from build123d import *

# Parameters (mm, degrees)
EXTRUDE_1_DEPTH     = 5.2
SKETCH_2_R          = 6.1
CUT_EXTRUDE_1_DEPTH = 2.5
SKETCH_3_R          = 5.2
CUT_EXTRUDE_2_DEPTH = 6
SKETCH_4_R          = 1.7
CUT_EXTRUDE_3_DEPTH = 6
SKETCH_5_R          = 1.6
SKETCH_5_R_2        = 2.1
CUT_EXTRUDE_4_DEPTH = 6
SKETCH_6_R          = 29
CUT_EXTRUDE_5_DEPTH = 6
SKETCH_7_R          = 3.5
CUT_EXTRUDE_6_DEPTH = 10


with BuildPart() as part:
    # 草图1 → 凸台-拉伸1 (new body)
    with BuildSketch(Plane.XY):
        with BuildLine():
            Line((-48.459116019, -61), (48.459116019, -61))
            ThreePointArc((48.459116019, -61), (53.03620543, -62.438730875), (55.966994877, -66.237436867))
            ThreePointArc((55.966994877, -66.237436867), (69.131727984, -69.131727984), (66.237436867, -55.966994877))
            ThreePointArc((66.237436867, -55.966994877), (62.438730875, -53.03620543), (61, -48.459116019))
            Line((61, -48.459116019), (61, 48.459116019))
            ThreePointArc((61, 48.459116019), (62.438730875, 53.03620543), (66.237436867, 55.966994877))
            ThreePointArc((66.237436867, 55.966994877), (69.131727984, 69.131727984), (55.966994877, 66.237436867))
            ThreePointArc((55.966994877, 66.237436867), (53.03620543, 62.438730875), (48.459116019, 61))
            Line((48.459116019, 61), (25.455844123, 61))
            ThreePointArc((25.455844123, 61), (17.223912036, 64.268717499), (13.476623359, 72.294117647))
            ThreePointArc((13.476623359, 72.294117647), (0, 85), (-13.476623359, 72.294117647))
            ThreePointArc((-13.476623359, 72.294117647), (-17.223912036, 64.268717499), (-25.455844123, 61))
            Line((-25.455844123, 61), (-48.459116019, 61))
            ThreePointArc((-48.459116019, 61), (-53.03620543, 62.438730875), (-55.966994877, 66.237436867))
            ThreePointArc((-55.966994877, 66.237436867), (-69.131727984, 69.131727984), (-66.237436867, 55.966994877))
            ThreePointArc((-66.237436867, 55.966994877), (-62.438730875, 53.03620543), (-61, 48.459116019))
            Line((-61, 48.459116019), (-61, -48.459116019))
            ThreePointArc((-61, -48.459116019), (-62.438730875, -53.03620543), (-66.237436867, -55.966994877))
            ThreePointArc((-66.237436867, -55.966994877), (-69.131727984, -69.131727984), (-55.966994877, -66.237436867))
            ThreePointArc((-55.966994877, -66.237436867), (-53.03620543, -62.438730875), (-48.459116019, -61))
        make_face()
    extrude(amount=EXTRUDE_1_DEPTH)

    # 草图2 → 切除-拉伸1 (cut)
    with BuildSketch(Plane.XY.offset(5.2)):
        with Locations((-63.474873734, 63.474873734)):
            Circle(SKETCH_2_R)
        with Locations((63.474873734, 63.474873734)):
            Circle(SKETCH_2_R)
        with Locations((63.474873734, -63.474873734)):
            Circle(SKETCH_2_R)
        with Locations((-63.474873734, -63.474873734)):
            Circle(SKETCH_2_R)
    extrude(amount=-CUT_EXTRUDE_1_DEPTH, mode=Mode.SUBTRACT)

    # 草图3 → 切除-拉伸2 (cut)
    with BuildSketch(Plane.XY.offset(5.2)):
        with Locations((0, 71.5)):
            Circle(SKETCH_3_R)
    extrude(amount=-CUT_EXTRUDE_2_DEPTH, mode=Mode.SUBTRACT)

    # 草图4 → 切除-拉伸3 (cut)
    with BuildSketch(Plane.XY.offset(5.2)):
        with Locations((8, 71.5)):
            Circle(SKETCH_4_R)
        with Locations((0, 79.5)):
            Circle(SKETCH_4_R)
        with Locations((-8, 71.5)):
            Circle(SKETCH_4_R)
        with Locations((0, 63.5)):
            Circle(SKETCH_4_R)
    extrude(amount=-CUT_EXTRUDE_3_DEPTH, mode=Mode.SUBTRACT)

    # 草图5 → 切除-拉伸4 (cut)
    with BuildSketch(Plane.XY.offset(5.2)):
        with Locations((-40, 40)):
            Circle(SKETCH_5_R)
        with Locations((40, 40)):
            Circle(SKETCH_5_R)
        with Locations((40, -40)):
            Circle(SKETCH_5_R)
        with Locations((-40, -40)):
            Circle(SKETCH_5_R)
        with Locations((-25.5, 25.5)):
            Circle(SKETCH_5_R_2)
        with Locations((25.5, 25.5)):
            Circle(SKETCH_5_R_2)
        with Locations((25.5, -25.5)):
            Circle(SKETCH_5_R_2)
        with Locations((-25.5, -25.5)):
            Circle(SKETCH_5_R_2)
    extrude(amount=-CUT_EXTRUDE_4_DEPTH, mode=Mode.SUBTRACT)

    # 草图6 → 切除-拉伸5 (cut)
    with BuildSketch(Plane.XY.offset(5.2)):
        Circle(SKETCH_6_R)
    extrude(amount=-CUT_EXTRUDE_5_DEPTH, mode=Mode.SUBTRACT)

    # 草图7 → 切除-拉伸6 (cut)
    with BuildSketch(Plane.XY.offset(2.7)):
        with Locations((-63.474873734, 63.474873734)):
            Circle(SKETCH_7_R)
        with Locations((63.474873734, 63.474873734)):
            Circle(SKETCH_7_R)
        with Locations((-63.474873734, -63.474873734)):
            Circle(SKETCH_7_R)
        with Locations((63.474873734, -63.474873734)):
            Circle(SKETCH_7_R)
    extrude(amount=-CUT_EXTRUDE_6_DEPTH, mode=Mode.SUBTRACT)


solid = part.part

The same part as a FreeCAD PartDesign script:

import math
import FreeCAD as App
import Part
import Sketcher

V = App.Vector

doc = App.newDocument("Part")
body = doc.addObject("PartDesign::Body", "Body")

sketch1 = body.newObject("Sketcher::SketchObject", "Sketch")
sketch1.AttachmentSupport = (doc.getObject("XY_Plane"), [""])
sketch1.MapMode = "FlatFace"
sketch1.addGeometry(Part.LineSegment(V(-48.459116, -61, 0), V(48.459116, -61, 0)), False)
sketch1.addGeometry(Part.ArcOfCircle(Part.Circle(V(48.459116, -69, 0), V(0, 0, 1), 8), math.radians(20.201355), math.radians(90)), False)
sketch1.addGeometry(Part.ArcOfCircle(Part.Circle(V(63.474874, -63.474874, 0), V(0, 0, 1), 8), math.radians(-159.798645), math.radians(69.798645)), False)
sketch1.addGeometry(Part.ArcOfCircle(Part.Circle(V(69, -48.459116, 0), V(0, 0, 1), 8), math.radians(180), math.radians(249.798645)), False)
sketch1.addGeometry(Part.LineSegment(V(61, -48.459116, 0), V(61, 48.459116, 0)), False)
sketch1.addGeometry(Part.ArcOfCircle(Part.Circle(V(69, 48.459116, 0), V(0, 0, 1), 8), math.radians(110.201355), math.radians(180)), False)
sketch1.addGeometry(Part.ArcOfCircle(Part.Circle(V(63.474874, 63.474874, 0), V(0, 0, 1), 8), math.radians(-69.798645), math.radians(159.798645)), False)
sketch1.addGeometry(Part.ArcOfCircle(Part.Circle(V(48.459116, 69, 0), V(0, 0, 1), 8), math.radians(-90), math.radians(-20.201355)), False)
sketch1.addGeometry(Part.LineSegment(V(48.459116, 61, 0), V(25.455844, 61, 0)), False)
sketch1.addGeometry(Part.ArcOfCircle(Part.Circle(V(25.455844, 73, 0), V(0, 0, 1), 12), math.radians(-176.627713), math.radians(-90)), False)
sketch1.addGeometry(Part.ArcOfCircle(Part.Circle(V(0, 71.5, 0), V(0, 0, 1), 13.5), math.radians(3.372287), math.radians(176.627713)), False)
sketch1.addGeometry(Part.ArcOfCircle(Part.Circle(V(-25.455844, 73, 0), V(0, 0, 1), 12), math.radians(-90), math.radians(-3.372287)), False)
sketch1.addGeometry(Part.LineSegment(V(-25.455844, 61, 0), V(-48.459116, 61, 0)), False)
sketch1.addGeometry(Part.ArcOfCircle(Part.Circle(V(-48.459116, 69, 0), V(0, 0, 1), 8), math.radians(-159.798645), math.radians(-90)), False)
sketch1.addGeometry(Part.ArcOfCircle(Part.Circle(V(-63.474874, 63.474874, 0), V(0, 0, 1), 8), math.radians(20.201355), math.radians(249.798645)), False)
sketch1.addGeometry(Part.ArcOfCircle(Part.Circle(V(-69, 48.459116, 0), V(0, 0, 1), 8), math.radians(0), math.radians(69.798645)), False)
sketch1.addGeometry(Part.LineSegment(V(-61, 48.459116, 0), V(-61, -48.459116, 0)), False)
sketch1.addGeometry(Part.ArcOfCircle(Part.Circle(V(-69, -48.459116, 0), V(0, 0, 1), 8), math.radians(-69.798645), math.radians(0)), False)
sketch1.addGeometry(Part.ArcOfCircle(Part.Circle(V(-63.474874, -63.474874, 0), V(0, 0, 1), 8), math.radians(110.201355), math.radians(339.798645)), False)
sketch1.addGeometry(Part.ArcOfCircle(Part.Circle(V(-48.459116, -69, 0), V(0, 0, 1), 8), math.radians(90), math.radians(159.798645)), False)
sketch1.addConstraint(Sketcher.Constraint("Tangent", 0, 2, 1, 2))
sketch1.addConstraint(Sketcher.Constraint("Tangent", 1, 1, 2, 1))
sketch1.addConstraint(Sketcher.Constraint("Tangent", 2, 2, 3, 2))
sketch1.addConstraint(Sketcher.Constraint("Tangent", 3, 1, 4, 1))
sketch1.addConstraint(Sketcher.Constraint("Tangent", 4, 2, 5, 2))
sketch1.addConstraint(Sketcher.Constraint("Tangent", 5, 1, 6, 1))
sketch1.addConstraint(Sketcher.Constraint("Tangent", 6, 2, 7, 2))
sketch1.addConstraint(Sketcher.Constraint("Tangent", 7, 1, 8, 1))
sketch1.addConstraint(Sketcher.Constraint("Tangent", 8, 2, 9, 2))
sketch1.addConstraint(Sketcher.Constraint("Tangent", 9, 1, 10, 1))
sketch1.addConstraint(Sketcher.Constraint("Tangent", 10, 2, 11, 2))
sketch1.addConstraint(Sketcher.Constraint("Tangent", 11, 1, 12, 1))
sketch1.addConstraint(Sketcher.Constraint("Tangent", 12, 2, 13, 2))
sketch1.addConstraint(Sketcher.Constraint("Tangent", 13, 1, 14, 1))
sketch1.addConstraint(Sketcher.Constraint("Tangent", 14, 2, 15, 2))
sketch1.addConstraint(Sketcher.Constraint("Tangent", 15, 1, 16, 1))
sketch1.addConstraint(Sketcher.Constraint("Tangent", 16, 2, 17, 2))
sketch1.addConstraint(Sketcher.Constraint("Tangent", 17, 1, 18, 1))
sketch1.addConstraint(Sketcher.Constraint("Tangent", 18, 2, 19, 2))
sketch1.addConstraint(Sketcher.Constraint("Tangent", 19, 1, 0, 1))
sketch1.addConstraint(Sketcher.Constraint("Horizontal", 0))
sketch1.addConstraint(Sketcher.Constraint("Vertical", 4))
sketch1.addConstraint(Sketcher.Constraint("Horizontal", 8))
sketch1.addConstraint(Sketcher.Constraint("Horizontal", 12))
sketch1.addConstraint(Sketcher.Constraint("Vertical", 16))
sketch1.addConstraint(Sketcher.Constraint("Equal", 1, 2))
sketch1.addConstraint(Sketcher.Constraint("Equal", 2, 3))
sketch1.addConstraint(Sketcher.Constraint("Equal", 3, 5))
sketch1.addConstraint(Sketcher.Constraint("Equal", 5, 6))
sketch1.addConstraint(Sketcher.Constraint("Equal", 6, 7))
sketch1.addConstraint(Sketcher.Constraint("Equal", 9, 11))
sketch1.addConstraint(Sketcher.Constraint("Equal", 7, 13))
sketch1.addConstraint(Sketcher.Constraint("Equal", 13, 14))
sketch1.addConstraint(Sketcher.Constraint("Equal", 14, 15))
sketch1.addConstraint(Sketcher.Constraint("Equal", 15, 17))
sketch1.addConstraint(Sketcher.Constraint("Equal", 17, 18))
sketch1.addConstraint(Sketcher.Constraint("Equal", 18, 19))
sketch1.addConstraint(Sketcher.Constraint("Symmetric", 1, 3, 13, 3, -1, 1))
sketch1.addConstraint(Sketcher.Constraint("Symmetric", 3, 3, 15, 3, -1, 1))
sketch1.addConstraint(Sketcher.Constraint("Symmetric", 6, 3, 18, 3, -1, 1))
sketch1.addConstraint(Sketcher.Constraint("Symmetric", 9, 3, 11, 3, -2))
sketch1.addConstraint(Sketcher.Constraint("Symmetric", 6, 3, 14, 3, -2))
sketch1.addConstraint(Sketcher.Constraint("Equal", 0, 4))
sketch1.addConstraint(Sketcher.Constraint("Radius", 1, 8.0))
sketch1.addConstraint(Sketcher.Constraint("Radius", 9, 12.0))
sketch1.addConstraint(Sketcher.Constraint("Radius", 10, 13.5))
sketch1.addConstraint(Sketcher.Constraint("DistanceY", 1, 3, -1, 1, 69.0))
sketch1.addConstraint(Sketcher.Constraint("DistanceX", -1, 1, 3, 3, 69.0))
sketch1.addConstraint(Sketcher.Constraint("DistanceY", -1, 1, 10, 3, 71.5))
sketch1.addConstraint(Sketcher.Constraint("DistanceX", 8, 2, 8, 1, 23.003272))
pad1 = body.newObject("PartDesign::Pad", "Pad")
pad1.Profile = sketch1
pad1.Length = 5.2

sketch2 = body.newObject("Sketcher::SketchObject", "Sketch001")
sketch2.AttachmentSupport = (doc.getObject("XY_Plane"), [""])
sketch2.MapMode = "FlatFace"
sketch2.AttachmentOffset = App.Placement(V(0, 0, 5.2), App.Rotation())
sketch2.addGeometry(Part.Circle(V(-63.474874, 63.474874, 0), V(0, 0, 1), 6.1), False)
sketch2.addGeometry(Part.Circle(V(63.474874, 63.474874, 0), V(0, 0, 1), 6.1), False)
sketch2.addGeometry(Part.Circle(V(63.474874, -63.474874, 0), V(0, 0, 1), 6.1), False)
sketch2.addGeometry(Part.Circle(V(-63.474874, -63.474874, 0), V(0, 0, 1), 6.1), False)
sketch2.addConstraint(Sketcher.Constraint("Equal", 0, 1))
sketch2.addConstraint(Sketcher.Constraint("Equal", 1, 2))
sketch2.addConstraint(Sketcher.Constraint("Equal", 2, 3))
sketch2.addConstraint(Sketcher.Constraint("Symmetric", 0, 3, 2, 3, -1, 1))
sketch2.addConstraint(Sketcher.Constraint("Symmetric", 1, 3, 3, 3, -1, 1))
sketch2.addConstraint(Sketcher.Constraint("Symmetric", 0, 3, 1, 3, -2))
sketch2.addConstraint(Sketcher.Constraint("Diameter", 0, 12.2))
sketch2.addConstraint(Sketcher.Constraint("DistanceX", 0, 3, -1, 1, 63.474874))
sketch2.addConstraint(Sketcher.Constraint("DistanceY", -1, 1, 0, 3, 63.474874))
pocket1 = body.newObject("PartDesign::Pocket", "Pocket")
pocket1.Profile = sketch2
pocket1.Length = 2.5

sketch3 = body.newObject("Sketcher::SketchObject", "Sketch002")
sketch3.AttachmentSupport = (doc.getObject("XY_Plane"), [""])
sketch3.MapMode = "FlatFace"
sketch3.AttachmentOffset = App.Placement(V(0, 0, 5.2), App.Rotation())
sketch3.addGeometry(Part.Circle(V(0, 71.5, 0), V(0, 0, 1), 5.2), False)
sketch3.addConstraint(Sketcher.Constraint("PointOnObject", 0, 3, -2))
sketch3.addConstraint(Sketcher.Constraint("Diameter", 0, 10.4))
sketch3.addConstraint(Sketcher.Constraint("DistanceY", -1, 1, 0, 3, 71.5))
pocket2 = body.newObject("PartDesign::Pocket", "Pocket001")
pocket2.Profile = sketch3
pocket2.Length = 6

sketch4 = body.newObject("Sketcher::SketchObject", "Sketch003")
sketch4.AttachmentSupport = (doc.getObject("XY_Plane"), [""])
sketch4.MapMode = "FlatFace"
sketch4.AttachmentOffset = App.Placement(V(0, 0, 5.2), App.Rotation())
sketch4.addGeometry(Part.Circle(V(8, 71.5, 0), V(0, 0, 1), 1.7), False)
sketch4.addGeometry(Part.Circle(V(0, 79.5, 0), V(0, 0, 1), 1.7), False)
sketch4.addGeometry(Part.Circle(V(-8, 71.5, 0), V(0, 0, 1), 1.7), False)
sketch4.addGeometry(Part.Circle(V(0, 63.5, 0), V(0, 0, 1), 1.7), False)
sketch4.addConstraint(Sketcher.Constraint("Equal", 0, 1))
sketch4.addConstraint(Sketcher.Constraint("Equal", 1, 2))
sketch4.addConstraint(Sketcher.Constraint("Equal", 2, 3))
sketch4.addConstraint(Sketcher.Constraint("Symmetric", 0, 3, 2, 3, -2))
sketch4.addConstraint(Sketcher.Constraint("PointOnObject", 1, 3, -2))
sketch4.addConstraint(Sketcher.Constraint("PointOnObject", 3, 3, -2))
sketch4.addConstraint(Sketcher.Constraint("Diameter", 0, 3.4))
sketch4.addConstraint(Sketcher.Constraint("DistanceX", -1, 1, 0, 3, 8.0))
sketch4.addConstraint(Sketcher.Constraint("DistanceY", 0, 3, 1, 3, 8.0))
sketch4.addConstraint(Sketcher.Constraint("DistanceY", 3, 3, 0, 3, 8.0))
sketch4.addConstraint(Sketcher.Constraint("DistanceY", -1, 1, 0, 3, 71.5))
pocket3 = body.newObject("PartDesign::Pocket", "Pocket002")
pocket3.Profile = sketch4
pocket3.Length = 6

sketch5 = body.newObject("Sketcher::SketchObject", "Sketch004")
sketch5.AttachmentSupport = (doc.getObject("XY_Plane"), [""])
sketch5.MapMode = "FlatFace"
sketch5.AttachmentOffset = App.Placement(V(0, 0, 5.2), App.Rotation())
sketch5.addGeometry(Part.Circle(V(-40, 40, 0), V(0, 0, 1), 1.6), False)
sketch5.addGeometry(Part.Circle(V(40, 40, 0), V(0, 0, 1), 1.6), False)
sketch5.addGeometry(Part.Circle(V(40, -40, 0), V(0, 0, 1), 1.6), False)
sketch5.addGeometry(Part.Circle(V(-40, -40, 0), V(0, 0, 1), 1.6), False)
sketch5.addGeometry(Part.Circle(V(-25.5, 25.5, 0), V(0, 0, 1), 2.1), False)
sketch5.addGeometry(Part.Circle(V(25.5, 25.5, 0), V(0, 0, 1), 2.1), False)
sketch5.addGeometry(Part.Circle(V(25.5, -25.5, 0), V(0, 0, 1), 2.1), False)
sketch5.addGeometry(Part.Circle(V(-25.5, -25.5, 0), V(0, 0, 1), 2.1), False)
sketch5.addConstraint(Sketcher.Constraint("Equal", 0, 1))
sketch5.addConstraint(Sketcher.Constraint("Equal", 1, 2))
sketch5.addConstraint(Sketcher.Constraint("Equal", 2, 3))
sketch5.addConstraint(Sketcher.Constraint("Equal", 4, 5))
sketch5.addConstraint(Sketcher.Constraint("Equal", 5, 6))
sketch5.addConstraint(Sketcher.Constraint("Equal", 6, 7))
sketch5.addConstraint(Sketcher.Constraint("Symmetric", 0, 3, 2, 3, -1, 1))
sketch5.addConstraint(Sketcher.Constraint("Symmetric", 1, 3, 3, 3, -1, 1))
sketch5.addConstraint(Sketcher.Constraint("Symmetric", 4, 3, 6, 3, -1, 1))
sketch5.addConstraint(Sketcher.Constraint("Symmetric", 5, 3, 7, 3, -1, 1))
sketch5.addConstraint(Sketcher.Constraint("Symmetric", 0, 3, 1, 3, -2))
sketch5.addConstraint(Sketcher.Constraint("Symmetric", 4, 3, 5, 3, -2))
sketch5.addConstraint(Sketcher.Constraint("Diameter", 0, 3.2))
sketch5.addConstraint(Sketcher.Constraint("Diameter", 4, 4.2))
sketch5.addConstraint(Sketcher.Constraint("DistanceX", 0, 3, -1, 1, 40.0))
sketch5.addConstraint(Sketcher.Constraint("DistanceY", -1, 1, 0, 3, 40.0))
sketch5.addConstraint(Sketcher.Constraint("DistanceX", 4, 3, 5, 3, 51.0))
sketch5.addConstraint(Sketcher.Constraint("DistanceY", 6, 3, 5, 3, 51.0))
pocket4 = body.newObject("PartDesign::Pocket", "Pocket003")
pocket4.Profile = sketch5
pocket4.Length = 6

sketch6 = body.newObject("Sketcher::SketchObject", "Sketch005")
sketch6.AttachmentSupport = (doc.getObject("XY_Plane"), [""])
sketch6.MapMode = "FlatFace"
sketch6.AttachmentOffset = App.Placement(V(0, 0, 5.2), App.Rotation())
sketch6.addGeometry(Part.Circle(V(0, 0, 0), V(0, 0, 1), 29), False)
sketch6.addConstraint(Sketcher.Constraint("Coincident", 0, 3, -1, 1))
sketch6.addConstraint(Sketcher.Constraint("Diameter", 0, 58.0))
pocket5 = body.newObject("PartDesign::Pocket", "Pocket004")
pocket5.Profile = sketch6
pocket5.Length = 6

sketch7 = body.newObject("Sketcher::SketchObject", "Sketch006")
sketch7.AttachmentSupport = (doc.getObject("XY_Plane"), [""])
sketch7.MapMode = "FlatFace"
sketch7.AttachmentOffset = App.Placement(V(0, 0, 2.7), App.Rotation())
sketch7.addGeometry(Part.Circle(V(-63.474874, 63.474874, 0), V(0, 0, 1), 3.5), False)
sketch7.addGeometry(Part.Circle(V(63.474874, 63.474874, 0), V(0, 0, 1), 3.5), False)
sketch7.addGeometry(Part.Circle(V(-63.474874, -63.474874, 0), V(0, 0, 1), 3.5), False)
sketch7.addGeometry(Part.Circle(V(63.474874, -63.474874, 0), V(0, 0, 1), 3.5), False)
sketch7.addConstraint(Sketcher.Constraint("Equal", 0, 1))
sketch7.addConstraint(Sketcher.Constraint("Equal", 1, 2))
sketch7.addConstraint(Sketcher.Constraint("Equal", 2, 3))
sketch7.addConstraint(Sketcher.Constraint("Symmetric", 1, 3, 2, 3, -1, 1))
sketch7.addConstraint(Sketcher.Constraint("Symmetric", 0, 3, 3, 3, -1, 1))
sketch7.addConstraint(Sketcher.Constraint("Symmetric", 0, 3, 1, 3, -2))
sketch7.addConstraint(Sketcher.Constraint("Diameter", 0, 7.0))
sketch7.addConstraint(Sketcher.Constraint("DistanceX", 0, 3, -1, 1, 63.474874))
sketch7.addConstraint(Sketcher.Constraint("DistanceY", -1, 1, 0, 3, 63.474874))
pocket6 = body.newObject("PartDesign::Pocket", "Pocket005")
pocket6.Profile = sketch7
pocket6.Length = 10

doc.recompute()
